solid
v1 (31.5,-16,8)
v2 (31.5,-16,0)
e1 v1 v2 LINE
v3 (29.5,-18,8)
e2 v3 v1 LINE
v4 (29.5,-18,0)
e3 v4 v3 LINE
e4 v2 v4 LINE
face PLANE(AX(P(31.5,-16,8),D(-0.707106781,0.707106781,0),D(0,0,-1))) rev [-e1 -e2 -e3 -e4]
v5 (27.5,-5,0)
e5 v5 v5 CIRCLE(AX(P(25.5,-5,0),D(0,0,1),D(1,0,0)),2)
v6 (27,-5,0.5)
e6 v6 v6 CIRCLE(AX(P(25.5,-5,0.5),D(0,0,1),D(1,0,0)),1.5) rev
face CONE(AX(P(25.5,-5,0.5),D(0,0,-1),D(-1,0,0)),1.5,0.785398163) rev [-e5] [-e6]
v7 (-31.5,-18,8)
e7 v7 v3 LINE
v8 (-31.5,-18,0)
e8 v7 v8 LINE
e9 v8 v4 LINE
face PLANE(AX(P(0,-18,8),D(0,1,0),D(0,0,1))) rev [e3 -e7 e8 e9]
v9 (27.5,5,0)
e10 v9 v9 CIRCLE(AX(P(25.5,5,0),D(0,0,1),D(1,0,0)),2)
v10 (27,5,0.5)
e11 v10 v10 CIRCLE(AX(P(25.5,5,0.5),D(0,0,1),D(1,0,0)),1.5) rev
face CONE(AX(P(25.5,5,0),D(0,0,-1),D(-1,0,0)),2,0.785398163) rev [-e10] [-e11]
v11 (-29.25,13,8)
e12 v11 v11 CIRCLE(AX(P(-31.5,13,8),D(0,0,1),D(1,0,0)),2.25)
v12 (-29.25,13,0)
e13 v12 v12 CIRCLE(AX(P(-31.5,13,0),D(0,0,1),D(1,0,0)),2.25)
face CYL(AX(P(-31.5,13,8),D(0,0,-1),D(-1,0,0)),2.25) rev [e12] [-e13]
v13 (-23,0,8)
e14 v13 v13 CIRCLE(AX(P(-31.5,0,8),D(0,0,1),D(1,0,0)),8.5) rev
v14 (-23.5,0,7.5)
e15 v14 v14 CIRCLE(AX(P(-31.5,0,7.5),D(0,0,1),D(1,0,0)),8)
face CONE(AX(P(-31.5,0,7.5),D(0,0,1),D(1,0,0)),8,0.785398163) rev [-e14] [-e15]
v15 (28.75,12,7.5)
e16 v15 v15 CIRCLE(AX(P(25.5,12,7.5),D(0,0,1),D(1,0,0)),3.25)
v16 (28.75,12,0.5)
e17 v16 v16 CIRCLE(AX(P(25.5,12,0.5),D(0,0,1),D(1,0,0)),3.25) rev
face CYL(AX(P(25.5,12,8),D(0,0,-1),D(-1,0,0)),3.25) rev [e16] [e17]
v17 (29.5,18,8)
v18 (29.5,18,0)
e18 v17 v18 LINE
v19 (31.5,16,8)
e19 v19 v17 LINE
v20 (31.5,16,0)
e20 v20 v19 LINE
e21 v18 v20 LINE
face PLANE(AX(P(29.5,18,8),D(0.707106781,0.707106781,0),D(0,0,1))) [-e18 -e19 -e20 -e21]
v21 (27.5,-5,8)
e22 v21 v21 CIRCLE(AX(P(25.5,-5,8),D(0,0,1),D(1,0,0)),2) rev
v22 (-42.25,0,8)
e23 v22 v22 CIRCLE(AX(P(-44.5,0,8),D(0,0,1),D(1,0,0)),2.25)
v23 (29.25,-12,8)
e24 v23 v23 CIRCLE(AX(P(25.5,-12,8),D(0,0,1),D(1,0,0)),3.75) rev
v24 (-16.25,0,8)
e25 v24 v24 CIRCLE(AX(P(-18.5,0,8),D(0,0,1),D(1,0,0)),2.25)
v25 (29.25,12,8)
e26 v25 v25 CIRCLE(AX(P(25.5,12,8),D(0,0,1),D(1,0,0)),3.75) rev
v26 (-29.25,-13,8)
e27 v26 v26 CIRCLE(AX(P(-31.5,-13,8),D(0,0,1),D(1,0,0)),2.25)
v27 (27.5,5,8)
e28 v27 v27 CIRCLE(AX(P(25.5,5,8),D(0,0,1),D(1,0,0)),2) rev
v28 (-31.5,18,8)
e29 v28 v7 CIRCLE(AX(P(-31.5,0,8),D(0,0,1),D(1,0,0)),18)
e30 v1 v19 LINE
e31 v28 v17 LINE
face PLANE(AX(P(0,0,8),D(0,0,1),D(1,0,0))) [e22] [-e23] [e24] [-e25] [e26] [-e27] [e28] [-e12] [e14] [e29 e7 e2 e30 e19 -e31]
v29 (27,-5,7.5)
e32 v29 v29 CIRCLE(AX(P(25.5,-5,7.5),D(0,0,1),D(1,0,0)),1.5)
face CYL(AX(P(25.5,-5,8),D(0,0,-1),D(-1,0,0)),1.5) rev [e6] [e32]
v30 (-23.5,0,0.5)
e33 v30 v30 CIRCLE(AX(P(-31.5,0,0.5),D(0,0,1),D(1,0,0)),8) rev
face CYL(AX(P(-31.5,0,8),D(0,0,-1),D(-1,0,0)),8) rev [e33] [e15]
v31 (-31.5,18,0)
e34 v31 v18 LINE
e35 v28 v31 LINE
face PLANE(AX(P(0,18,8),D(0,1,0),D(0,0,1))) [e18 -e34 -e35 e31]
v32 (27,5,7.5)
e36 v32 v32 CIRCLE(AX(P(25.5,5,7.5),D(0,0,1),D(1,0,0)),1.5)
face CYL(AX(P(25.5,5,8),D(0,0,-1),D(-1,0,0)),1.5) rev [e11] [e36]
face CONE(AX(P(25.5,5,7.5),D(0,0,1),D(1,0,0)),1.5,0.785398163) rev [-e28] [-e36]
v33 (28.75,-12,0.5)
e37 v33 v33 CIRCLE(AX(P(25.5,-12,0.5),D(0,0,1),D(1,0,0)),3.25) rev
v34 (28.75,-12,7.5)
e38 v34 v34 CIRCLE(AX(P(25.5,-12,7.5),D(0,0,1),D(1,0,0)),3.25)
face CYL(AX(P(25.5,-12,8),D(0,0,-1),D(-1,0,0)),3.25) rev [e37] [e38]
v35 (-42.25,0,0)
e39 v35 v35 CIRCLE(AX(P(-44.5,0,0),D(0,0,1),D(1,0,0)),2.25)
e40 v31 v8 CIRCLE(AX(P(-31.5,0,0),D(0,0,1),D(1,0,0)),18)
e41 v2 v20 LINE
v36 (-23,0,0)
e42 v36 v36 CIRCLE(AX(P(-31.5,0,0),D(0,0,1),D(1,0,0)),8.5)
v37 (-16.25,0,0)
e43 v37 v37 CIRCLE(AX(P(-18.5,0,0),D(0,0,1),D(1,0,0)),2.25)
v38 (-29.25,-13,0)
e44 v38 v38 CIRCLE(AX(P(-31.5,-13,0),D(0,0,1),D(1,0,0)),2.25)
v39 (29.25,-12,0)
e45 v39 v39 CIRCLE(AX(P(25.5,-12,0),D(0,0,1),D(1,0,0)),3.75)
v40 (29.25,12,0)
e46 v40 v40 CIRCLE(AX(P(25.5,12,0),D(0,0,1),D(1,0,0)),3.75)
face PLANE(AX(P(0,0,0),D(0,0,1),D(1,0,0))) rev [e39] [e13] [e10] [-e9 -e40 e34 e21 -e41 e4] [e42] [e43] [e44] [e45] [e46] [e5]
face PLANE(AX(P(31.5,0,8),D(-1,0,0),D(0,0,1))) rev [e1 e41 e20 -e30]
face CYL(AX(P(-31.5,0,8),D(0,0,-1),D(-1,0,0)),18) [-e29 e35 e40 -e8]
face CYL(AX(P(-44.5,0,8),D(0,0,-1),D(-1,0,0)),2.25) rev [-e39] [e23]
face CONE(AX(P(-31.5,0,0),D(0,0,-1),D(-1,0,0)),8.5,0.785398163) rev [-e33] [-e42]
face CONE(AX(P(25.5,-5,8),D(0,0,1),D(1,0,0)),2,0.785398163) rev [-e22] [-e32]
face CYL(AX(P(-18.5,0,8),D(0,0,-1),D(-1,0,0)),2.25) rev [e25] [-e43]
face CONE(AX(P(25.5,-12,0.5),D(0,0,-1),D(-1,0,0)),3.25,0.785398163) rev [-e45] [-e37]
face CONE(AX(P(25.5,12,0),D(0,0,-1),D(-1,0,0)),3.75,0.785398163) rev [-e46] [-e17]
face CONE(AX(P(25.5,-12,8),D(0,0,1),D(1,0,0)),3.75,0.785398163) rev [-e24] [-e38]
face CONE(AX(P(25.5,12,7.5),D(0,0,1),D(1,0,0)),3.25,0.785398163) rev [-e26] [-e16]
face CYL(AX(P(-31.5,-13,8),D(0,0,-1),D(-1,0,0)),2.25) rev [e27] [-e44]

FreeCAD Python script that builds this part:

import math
import FreeCAD as App
import Part
import Sketcher
Q = App.Units.Quantity


def edges_at(feature, points):
    """Names of the edges that pass closest to the given points."""
    edges = feature.Shape.Edges
    near = lambda p: min(range(len(edges)), key=lambda i: edges[i].distToShape(Part.Vertex(*p))[0])
    return sorted({f"Edge{near(p) + 1}" for p in points})

doc = App.newDocument("Part")
body = doc.addObject("PartDesign::Body", "Body")

sketch1 = doc.addObject("Sketcher::SketchObject", "Sketch")
body.addObject(sketch1)
sketch1.AttachmentSupport = (doc.XY_Plane, [""])
sketch1.MapMode = "FlatFace"
sketch1.addGeometry(Part.LineSegment(App.Vector(-31.5, -18, 0), App.Vector(31.5, -18, 0)), False)
sketch1.addGeometry(Part.LineSegment(App.Vector(31.5, -18, 0), App.Vector(31.5, 18, 0)), False)
sketch1.addGeometry(Part.LineSegment(App.Vector(31.5, 18, 0), App.Vector(-31.5, 18, 0)), False)
sketch1.addGeometry(Part.ArcOfCircle(Part.Circle(App.Vector(-31.5, 0, 0), App.Vector(0, 0, 1), 18), math.radians(90), math.radians(270)), False)
sketch1.addGeometry(Part.Circle(App.Vector(-31.5, -13, 0), App.Vector(0, 0, 1), 2.25), False)
sketch1.addGeometry(Part.Circle(App.Vector(25.5, -12, 0), App.Vector(0, 0, 1), 3.25), False)
sketch1.addGeometry(Part.Circle(App.Vector(25.5, -5, 0), App.Vector(0, 0, 1), 1.5), False)
sketch1.addGeometry(Part.Circle(App.Vector(-44.5, 0, 0), App.Vector(0, 0, 1), 2.25), False)
sketch1.addGeometry(Part.Circle(App.Vector(-31.5, 0, 0), App.Vector(0, 0, 1), 8), False)
sketch1.addGeometry(Part.Circle(App.Vector(-18.5, 0, 0), App.Vector(0, 0, 1), 2.25), False)
sketch1.addGeometry(Part.Circle(App.Vector(-31.5, 13, 0), App.Vector(0, 0, 1), 2.25), False)
sketch1.addGeometry(Part.Circle(App.Vector(25.5, 5, 0), App.Vector(0, 0, 1), 1.5), False)
sketch1.addGeometry(Part.Circle(App.Vector(25.5, 12, 0), App.Vector(0, 0, 1), 3.25), False)
sketch1.addConstraint(Sketcher.Constraint("Coincident", 0, 2, 1, 1))
sketch1.addConstraint(Sketcher.Constraint("Coincident", 1, 2, 2, 1))
sketch1.addConstraint(Sketcher.Constraint("Tangent", 2, 2, 3, 1))
sketch1.addConstraint(Sketcher.Constraint("Tangent", 3, 2, 0, 1))
sketch1.addConstraint(Sketcher.Constraint("Horizontal", 0))
sketch1.addConstraint(Sketcher.Constraint("Vertical", 1))
sketch1.addConstraint(Sketcher.Constraint("Horizontal", 2))
sketch1.addConstraint(Sketcher.Constraint("Coincident", 8, 3, 3, 3))
sketch1.addConstraint(Sketcher.Constraint("Equal", 4, 7))
sketch1.addConstraint(Sketcher.Constraint("Equal", 7, 9))
sketch1.addConstraint(Sketcher.Constraint("Equal", 9, 10))
sketch1.addConstraint(Sketcher.Constraint("Equal", 6, 11))
sketch1.addConstraint(Sketcher.Constraint("Equal", 5, 12))
sketch1.addConstraint(Sketcher.Constraint("Symmetric", 0, 2, 2, 2, -1, 1))
sketch1.addConstraint(Sketcher.Constraint("Symmetric", 4, 3, 10, 3, -1))
sketch1.addConstraint(Sketcher.Constraint("Symmetric", 6, 3, 11, 3, -1))
sketch1.addConstraint(Sketcher.Constraint("Symmetric", 5, 3, 12, 3, -1))
sketch1.addConstraint(Sketcher.Constraint("PointOnObject", 7, 3, -1))
sketch1.addConstraint(Sketcher.Constraint("PointOnObject", 9, 3, -1))
sketch1.addConstraint(Sketcher.Constraint("Vertical", 3, 3, 4, 3))
sketch1.addConstraint(Sketcher.Constraint("Vertical", 5, 3, 6, 3))
sketch1.addConstraint(Sketcher.Constraint("Diameter", 6, Q("3 mm")))
sketch1.addConstraint(Sketcher.Constraint("Diameter", 8, Q("16 mm")))
sketch1.addConstraint(Sketcher.Constraint("Radius", 3, Q("18 mm")))
sketch1.addConstraint(Sketcher.Constraint("Diameter", 4, Q("4.5 mm")))
sketch1.addConstraint(Sketcher.Constraint("Diameter", 5, Q("6.5 mm")))
sketch1.addConstraint(Sketcher.Constraint("DistanceX", 0, 1, 0, 2, Q("63 mm")))
sketch1.addConstraint(Sketcher.Constraint("DistanceY", 4, 3, -1, 1, Q("13 mm")))
sketch1.addConstraint(Sketcher.Constraint("DistanceY", 5, 3, -1, 1, Q("12 mm")))
sketch1.addConstraint(Sketcher.Constraint("DistanceY", 6, 3, -1, 1, Q("5 mm")))
sketch1.addConstraint(Sketcher.Constraint("DistanceX", 4, 3, 5, 3, Q("57 mm")))
sketch1.addConstraint(Sketcher.Constraint("DistanceX", 7, 3, 3, 3, Q("13 mm")))
sketch1.addConstraint(Sketcher.Constraint("DistanceX", 3, 3, 9, 3, Q("13 mm")))
pad1 = doc.addObject("PartDesign::Pad", "Pad")
body.addObject(pad1)
pad1.Profile = sketch1
pad1.Length = 8
doc.recompute()

chamfer = doc.addObject("PartDesign::Chamfer", "Chamfer")
body.addObject(chamfer)
chamfer.Base = (pad1, edges_at(pad1, [(31.5, 18, 4), (31.5, -18, 4)]))
chamfer.Size = 2
doc.recompute()

chamfer2 = doc.addObject("PartDesign::Chamfer", "Chamfer001")
body.addObject(chamfer2)
chamfer2.Base = (chamfer, edges_at(chamfer, [
    (-39.5, 0, 8),
    (22.25, -12, 0),
    (22.25, 12, 0),
    (24, 5, 0),
    (24, -5, 0),
    (-39.5, 0, 0),
    (24, -5, 8),
    (24, 5, 8),
    (22.25, 12, 8),
    (22.25, -12, 8),
]))
chamfer2.Size = 0.5

doc.recompute()
